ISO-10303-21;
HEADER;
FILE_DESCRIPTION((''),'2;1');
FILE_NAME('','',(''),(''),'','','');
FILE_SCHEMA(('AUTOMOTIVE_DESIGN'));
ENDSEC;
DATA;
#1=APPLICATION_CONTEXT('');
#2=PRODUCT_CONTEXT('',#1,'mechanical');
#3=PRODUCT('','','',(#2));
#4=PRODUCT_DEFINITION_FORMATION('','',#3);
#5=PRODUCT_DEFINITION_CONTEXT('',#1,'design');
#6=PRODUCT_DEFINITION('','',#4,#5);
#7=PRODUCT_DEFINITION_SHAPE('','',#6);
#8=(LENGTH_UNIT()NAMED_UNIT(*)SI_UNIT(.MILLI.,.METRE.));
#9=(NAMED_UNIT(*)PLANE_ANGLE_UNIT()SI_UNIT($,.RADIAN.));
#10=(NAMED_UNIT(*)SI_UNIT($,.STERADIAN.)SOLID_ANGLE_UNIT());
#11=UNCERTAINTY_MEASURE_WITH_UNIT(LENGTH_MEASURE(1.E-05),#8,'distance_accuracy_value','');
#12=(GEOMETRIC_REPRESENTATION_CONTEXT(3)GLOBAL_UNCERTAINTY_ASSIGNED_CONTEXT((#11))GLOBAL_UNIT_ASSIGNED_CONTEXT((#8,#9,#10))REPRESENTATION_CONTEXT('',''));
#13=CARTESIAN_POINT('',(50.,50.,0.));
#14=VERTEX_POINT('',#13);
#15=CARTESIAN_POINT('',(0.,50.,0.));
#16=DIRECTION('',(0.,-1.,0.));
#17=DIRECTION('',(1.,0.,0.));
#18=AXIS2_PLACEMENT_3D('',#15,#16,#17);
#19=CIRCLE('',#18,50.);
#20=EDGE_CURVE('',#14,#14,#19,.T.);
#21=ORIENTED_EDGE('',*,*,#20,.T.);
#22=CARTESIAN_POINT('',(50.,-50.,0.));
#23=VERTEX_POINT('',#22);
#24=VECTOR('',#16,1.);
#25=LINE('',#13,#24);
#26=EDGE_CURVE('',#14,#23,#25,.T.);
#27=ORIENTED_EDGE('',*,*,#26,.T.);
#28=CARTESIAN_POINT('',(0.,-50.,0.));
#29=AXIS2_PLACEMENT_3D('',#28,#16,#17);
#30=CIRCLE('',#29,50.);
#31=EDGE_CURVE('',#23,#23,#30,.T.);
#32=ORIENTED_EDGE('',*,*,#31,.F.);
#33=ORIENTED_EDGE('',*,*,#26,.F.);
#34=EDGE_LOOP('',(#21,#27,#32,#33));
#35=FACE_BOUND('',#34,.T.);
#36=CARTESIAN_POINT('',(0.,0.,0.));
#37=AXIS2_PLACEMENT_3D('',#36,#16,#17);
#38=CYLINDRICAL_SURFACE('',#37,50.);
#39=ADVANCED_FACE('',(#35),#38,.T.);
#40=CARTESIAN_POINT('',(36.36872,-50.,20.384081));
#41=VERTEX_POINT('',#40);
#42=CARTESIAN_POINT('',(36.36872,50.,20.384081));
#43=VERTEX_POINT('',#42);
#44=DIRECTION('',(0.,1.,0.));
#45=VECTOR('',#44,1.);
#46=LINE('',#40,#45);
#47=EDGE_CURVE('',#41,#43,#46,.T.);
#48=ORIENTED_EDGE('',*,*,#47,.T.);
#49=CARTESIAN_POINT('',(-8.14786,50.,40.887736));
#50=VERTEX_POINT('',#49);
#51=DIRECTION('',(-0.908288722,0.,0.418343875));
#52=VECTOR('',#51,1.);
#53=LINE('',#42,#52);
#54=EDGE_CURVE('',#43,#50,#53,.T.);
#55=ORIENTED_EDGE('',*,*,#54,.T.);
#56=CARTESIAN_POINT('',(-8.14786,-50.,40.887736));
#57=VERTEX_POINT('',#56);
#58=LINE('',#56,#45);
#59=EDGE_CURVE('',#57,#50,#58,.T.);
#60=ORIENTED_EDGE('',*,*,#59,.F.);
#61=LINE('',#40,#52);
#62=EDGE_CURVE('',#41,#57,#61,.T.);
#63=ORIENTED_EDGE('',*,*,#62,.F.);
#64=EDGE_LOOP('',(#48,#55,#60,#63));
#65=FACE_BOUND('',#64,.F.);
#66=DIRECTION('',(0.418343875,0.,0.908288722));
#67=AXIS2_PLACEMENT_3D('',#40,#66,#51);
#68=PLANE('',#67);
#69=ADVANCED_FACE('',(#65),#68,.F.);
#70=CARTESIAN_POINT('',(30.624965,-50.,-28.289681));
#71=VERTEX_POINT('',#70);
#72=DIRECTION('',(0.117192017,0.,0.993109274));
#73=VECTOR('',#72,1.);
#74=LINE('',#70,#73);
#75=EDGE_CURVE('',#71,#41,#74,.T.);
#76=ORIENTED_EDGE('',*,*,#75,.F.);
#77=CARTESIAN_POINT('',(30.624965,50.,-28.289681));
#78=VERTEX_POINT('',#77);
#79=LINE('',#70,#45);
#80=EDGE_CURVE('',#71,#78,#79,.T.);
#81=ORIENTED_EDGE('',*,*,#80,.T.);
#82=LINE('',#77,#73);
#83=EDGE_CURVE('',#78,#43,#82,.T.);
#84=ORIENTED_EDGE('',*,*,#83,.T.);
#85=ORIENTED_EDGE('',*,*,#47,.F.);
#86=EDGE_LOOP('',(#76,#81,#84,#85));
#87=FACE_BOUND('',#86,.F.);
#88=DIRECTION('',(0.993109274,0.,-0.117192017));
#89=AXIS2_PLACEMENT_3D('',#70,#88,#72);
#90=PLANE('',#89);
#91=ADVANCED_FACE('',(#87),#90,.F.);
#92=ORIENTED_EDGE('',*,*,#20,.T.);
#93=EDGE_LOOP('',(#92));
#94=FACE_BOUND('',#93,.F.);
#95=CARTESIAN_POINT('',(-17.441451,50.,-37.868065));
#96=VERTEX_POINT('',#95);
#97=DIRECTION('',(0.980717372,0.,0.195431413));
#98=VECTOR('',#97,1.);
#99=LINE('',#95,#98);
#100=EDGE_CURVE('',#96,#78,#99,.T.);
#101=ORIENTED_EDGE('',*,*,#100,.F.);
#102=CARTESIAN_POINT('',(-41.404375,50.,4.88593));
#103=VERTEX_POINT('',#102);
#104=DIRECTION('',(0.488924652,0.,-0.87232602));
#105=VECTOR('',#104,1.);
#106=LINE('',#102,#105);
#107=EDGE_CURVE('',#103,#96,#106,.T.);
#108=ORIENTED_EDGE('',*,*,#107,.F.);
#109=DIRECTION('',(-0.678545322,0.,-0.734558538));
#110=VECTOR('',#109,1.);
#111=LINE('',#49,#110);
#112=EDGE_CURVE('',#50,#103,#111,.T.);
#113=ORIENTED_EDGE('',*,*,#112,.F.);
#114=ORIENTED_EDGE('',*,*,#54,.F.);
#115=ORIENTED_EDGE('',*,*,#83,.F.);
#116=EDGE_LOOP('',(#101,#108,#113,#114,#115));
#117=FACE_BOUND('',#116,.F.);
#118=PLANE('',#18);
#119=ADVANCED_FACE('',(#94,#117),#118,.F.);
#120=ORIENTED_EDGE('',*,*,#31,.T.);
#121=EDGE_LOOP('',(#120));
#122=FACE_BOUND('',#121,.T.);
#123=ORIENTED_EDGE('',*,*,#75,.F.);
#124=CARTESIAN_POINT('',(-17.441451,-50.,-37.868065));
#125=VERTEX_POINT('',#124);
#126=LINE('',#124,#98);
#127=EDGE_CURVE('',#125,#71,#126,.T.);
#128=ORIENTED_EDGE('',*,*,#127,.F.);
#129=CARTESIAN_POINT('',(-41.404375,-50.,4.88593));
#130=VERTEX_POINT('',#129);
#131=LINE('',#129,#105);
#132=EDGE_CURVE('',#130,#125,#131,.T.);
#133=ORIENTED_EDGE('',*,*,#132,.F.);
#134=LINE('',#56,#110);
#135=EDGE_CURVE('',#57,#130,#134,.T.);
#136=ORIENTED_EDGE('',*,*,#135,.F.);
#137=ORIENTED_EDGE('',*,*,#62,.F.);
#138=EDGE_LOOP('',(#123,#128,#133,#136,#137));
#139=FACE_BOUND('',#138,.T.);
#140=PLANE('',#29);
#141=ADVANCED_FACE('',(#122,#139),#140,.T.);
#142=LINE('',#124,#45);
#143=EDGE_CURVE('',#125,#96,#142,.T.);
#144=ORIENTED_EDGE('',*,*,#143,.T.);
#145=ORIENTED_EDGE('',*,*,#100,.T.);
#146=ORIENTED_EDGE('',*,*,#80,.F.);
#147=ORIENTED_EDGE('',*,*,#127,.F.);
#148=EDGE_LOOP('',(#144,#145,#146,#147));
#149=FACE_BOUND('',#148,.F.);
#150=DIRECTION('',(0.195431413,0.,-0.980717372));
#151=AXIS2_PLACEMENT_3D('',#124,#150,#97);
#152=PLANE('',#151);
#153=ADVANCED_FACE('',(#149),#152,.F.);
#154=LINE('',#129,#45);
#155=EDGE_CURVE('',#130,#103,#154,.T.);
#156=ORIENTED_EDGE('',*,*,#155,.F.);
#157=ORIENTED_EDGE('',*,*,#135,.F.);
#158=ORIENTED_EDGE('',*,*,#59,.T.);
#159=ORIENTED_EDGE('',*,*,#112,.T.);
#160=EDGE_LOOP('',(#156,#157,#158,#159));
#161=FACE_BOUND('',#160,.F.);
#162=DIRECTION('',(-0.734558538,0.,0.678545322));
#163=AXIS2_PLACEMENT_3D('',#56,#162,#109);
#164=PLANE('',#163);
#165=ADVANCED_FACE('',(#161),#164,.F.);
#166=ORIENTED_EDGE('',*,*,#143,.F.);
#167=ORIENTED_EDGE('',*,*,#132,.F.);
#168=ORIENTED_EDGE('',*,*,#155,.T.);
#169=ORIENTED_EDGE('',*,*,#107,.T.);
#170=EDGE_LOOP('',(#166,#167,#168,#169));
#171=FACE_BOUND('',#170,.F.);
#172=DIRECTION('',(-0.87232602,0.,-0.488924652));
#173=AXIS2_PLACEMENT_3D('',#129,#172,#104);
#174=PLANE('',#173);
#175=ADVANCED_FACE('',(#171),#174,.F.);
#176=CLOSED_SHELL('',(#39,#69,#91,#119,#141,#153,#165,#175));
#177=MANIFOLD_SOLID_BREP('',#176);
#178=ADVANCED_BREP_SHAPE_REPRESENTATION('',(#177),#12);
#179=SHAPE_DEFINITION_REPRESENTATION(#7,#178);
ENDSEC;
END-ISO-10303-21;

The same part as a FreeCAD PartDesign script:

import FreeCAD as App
import Part
import Sketcher
from FreeCAD import Vector

doc = App.newDocument("Part")
body = doc.addObject("PartDesign::Body", "Body")

# Sketch on XZ plane
sketch1 = body.newObject("Sketcher::SketchObject", "Sketch")
sketch1.AttachmentSupport = (doc.getObject("XZ_Plane"), [""])
sketch1.MapMode = "FlatFace"
sketch1.addGeometry(Part.Circle(Vector(0, 0, 0), Vector(0, 0, 1), 50), False)
sketch1.addConstraint([
    Sketcher.Constraint("Coincident", 0, 3, -1, 1),
    Sketcher.Constraint("Diameter", 0, 100.0),
])
pad1 = body.newObject("PartDesign::Pad", "Pad")
pad1.Profile = sketch1
pad1.Length = 100
pad1.Midplane = True

# Sketch on XZ plane
sketch2 = body.newObject("Sketcher::SketchObject", "Sketch001")
sketch2.AttachmentSupport = (doc.getObject("XZ_Plane"), [""])
sketch2.MapMode = "FlatFace"
sketch2.AttachmentOffset = App.Placement(Vector(0, 0, 50), App.Rotation())
sketch2.addGeometry([
    Part.LineSegment(Vector(31, -28, 0), Vector(36, 20, 0)),  # 0
    Part.LineSegment(Vector(36, 20, 0), Vector(-8, 41, 0)),  # 1
    Part.LineSegment(Vector(-8, 41, 0), Vector(-41, 5, 0)),  # 2
    Part.LineSegment(Vector(-41, 5, 0), Vector(-17, -38, 0)),  # 3
    Part.LineSegment(Vector(-17, -38, 0), Vector(31, -28, 0)),  # 4
], False)
sketch2.addConstraint([
    Sketcher.Constraint("Coincident", 0, 2, 1, 1),
    Sketcher.Constraint("Coincident", 1, 2, 2, 1),
    Sketcher.Constraint("Coincident", 2, 2, 3, 1),
    Sketcher.Constraint("Coincident", 3, 2, 4, 1),
    Sketcher.Constraint("Coincident", 4, 2, 0, 1),
    Sketcher.Constraint("Equal", 0, 1),
    Sketcher.Constraint("Equal", 1, 2),
    Sketcher.Constraint("Equal", 2, 3),
    Sketcher.Constraint("Equal", 3, 4),
    Sketcher.Constraint("DistanceY", 3, 2, 1, 2, 78.755801),
    Sketcher.Constraint("DistanceX", -1, 1, 0, 2, 36.36872),
    Sketcher.Constraint("DistanceY", -1, 1, 0, 2, 20.384081),
    Sketcher.Constraint("DistanceX", 1, 2, -1, 1, 8.14786),
    Sketcher.Constraint("DistanceY", -1, 1, 2, 2, 4.88593),
    Sketcher.Constraint("DistanceX", 3, 2, -1, 1, 17.441451),
])
pocket1 = body.newObject("PartDesign::Pocket", "Pocket")
pocket1.Profile = sketch2
pocket1.Length = 100

doc.recompute()
